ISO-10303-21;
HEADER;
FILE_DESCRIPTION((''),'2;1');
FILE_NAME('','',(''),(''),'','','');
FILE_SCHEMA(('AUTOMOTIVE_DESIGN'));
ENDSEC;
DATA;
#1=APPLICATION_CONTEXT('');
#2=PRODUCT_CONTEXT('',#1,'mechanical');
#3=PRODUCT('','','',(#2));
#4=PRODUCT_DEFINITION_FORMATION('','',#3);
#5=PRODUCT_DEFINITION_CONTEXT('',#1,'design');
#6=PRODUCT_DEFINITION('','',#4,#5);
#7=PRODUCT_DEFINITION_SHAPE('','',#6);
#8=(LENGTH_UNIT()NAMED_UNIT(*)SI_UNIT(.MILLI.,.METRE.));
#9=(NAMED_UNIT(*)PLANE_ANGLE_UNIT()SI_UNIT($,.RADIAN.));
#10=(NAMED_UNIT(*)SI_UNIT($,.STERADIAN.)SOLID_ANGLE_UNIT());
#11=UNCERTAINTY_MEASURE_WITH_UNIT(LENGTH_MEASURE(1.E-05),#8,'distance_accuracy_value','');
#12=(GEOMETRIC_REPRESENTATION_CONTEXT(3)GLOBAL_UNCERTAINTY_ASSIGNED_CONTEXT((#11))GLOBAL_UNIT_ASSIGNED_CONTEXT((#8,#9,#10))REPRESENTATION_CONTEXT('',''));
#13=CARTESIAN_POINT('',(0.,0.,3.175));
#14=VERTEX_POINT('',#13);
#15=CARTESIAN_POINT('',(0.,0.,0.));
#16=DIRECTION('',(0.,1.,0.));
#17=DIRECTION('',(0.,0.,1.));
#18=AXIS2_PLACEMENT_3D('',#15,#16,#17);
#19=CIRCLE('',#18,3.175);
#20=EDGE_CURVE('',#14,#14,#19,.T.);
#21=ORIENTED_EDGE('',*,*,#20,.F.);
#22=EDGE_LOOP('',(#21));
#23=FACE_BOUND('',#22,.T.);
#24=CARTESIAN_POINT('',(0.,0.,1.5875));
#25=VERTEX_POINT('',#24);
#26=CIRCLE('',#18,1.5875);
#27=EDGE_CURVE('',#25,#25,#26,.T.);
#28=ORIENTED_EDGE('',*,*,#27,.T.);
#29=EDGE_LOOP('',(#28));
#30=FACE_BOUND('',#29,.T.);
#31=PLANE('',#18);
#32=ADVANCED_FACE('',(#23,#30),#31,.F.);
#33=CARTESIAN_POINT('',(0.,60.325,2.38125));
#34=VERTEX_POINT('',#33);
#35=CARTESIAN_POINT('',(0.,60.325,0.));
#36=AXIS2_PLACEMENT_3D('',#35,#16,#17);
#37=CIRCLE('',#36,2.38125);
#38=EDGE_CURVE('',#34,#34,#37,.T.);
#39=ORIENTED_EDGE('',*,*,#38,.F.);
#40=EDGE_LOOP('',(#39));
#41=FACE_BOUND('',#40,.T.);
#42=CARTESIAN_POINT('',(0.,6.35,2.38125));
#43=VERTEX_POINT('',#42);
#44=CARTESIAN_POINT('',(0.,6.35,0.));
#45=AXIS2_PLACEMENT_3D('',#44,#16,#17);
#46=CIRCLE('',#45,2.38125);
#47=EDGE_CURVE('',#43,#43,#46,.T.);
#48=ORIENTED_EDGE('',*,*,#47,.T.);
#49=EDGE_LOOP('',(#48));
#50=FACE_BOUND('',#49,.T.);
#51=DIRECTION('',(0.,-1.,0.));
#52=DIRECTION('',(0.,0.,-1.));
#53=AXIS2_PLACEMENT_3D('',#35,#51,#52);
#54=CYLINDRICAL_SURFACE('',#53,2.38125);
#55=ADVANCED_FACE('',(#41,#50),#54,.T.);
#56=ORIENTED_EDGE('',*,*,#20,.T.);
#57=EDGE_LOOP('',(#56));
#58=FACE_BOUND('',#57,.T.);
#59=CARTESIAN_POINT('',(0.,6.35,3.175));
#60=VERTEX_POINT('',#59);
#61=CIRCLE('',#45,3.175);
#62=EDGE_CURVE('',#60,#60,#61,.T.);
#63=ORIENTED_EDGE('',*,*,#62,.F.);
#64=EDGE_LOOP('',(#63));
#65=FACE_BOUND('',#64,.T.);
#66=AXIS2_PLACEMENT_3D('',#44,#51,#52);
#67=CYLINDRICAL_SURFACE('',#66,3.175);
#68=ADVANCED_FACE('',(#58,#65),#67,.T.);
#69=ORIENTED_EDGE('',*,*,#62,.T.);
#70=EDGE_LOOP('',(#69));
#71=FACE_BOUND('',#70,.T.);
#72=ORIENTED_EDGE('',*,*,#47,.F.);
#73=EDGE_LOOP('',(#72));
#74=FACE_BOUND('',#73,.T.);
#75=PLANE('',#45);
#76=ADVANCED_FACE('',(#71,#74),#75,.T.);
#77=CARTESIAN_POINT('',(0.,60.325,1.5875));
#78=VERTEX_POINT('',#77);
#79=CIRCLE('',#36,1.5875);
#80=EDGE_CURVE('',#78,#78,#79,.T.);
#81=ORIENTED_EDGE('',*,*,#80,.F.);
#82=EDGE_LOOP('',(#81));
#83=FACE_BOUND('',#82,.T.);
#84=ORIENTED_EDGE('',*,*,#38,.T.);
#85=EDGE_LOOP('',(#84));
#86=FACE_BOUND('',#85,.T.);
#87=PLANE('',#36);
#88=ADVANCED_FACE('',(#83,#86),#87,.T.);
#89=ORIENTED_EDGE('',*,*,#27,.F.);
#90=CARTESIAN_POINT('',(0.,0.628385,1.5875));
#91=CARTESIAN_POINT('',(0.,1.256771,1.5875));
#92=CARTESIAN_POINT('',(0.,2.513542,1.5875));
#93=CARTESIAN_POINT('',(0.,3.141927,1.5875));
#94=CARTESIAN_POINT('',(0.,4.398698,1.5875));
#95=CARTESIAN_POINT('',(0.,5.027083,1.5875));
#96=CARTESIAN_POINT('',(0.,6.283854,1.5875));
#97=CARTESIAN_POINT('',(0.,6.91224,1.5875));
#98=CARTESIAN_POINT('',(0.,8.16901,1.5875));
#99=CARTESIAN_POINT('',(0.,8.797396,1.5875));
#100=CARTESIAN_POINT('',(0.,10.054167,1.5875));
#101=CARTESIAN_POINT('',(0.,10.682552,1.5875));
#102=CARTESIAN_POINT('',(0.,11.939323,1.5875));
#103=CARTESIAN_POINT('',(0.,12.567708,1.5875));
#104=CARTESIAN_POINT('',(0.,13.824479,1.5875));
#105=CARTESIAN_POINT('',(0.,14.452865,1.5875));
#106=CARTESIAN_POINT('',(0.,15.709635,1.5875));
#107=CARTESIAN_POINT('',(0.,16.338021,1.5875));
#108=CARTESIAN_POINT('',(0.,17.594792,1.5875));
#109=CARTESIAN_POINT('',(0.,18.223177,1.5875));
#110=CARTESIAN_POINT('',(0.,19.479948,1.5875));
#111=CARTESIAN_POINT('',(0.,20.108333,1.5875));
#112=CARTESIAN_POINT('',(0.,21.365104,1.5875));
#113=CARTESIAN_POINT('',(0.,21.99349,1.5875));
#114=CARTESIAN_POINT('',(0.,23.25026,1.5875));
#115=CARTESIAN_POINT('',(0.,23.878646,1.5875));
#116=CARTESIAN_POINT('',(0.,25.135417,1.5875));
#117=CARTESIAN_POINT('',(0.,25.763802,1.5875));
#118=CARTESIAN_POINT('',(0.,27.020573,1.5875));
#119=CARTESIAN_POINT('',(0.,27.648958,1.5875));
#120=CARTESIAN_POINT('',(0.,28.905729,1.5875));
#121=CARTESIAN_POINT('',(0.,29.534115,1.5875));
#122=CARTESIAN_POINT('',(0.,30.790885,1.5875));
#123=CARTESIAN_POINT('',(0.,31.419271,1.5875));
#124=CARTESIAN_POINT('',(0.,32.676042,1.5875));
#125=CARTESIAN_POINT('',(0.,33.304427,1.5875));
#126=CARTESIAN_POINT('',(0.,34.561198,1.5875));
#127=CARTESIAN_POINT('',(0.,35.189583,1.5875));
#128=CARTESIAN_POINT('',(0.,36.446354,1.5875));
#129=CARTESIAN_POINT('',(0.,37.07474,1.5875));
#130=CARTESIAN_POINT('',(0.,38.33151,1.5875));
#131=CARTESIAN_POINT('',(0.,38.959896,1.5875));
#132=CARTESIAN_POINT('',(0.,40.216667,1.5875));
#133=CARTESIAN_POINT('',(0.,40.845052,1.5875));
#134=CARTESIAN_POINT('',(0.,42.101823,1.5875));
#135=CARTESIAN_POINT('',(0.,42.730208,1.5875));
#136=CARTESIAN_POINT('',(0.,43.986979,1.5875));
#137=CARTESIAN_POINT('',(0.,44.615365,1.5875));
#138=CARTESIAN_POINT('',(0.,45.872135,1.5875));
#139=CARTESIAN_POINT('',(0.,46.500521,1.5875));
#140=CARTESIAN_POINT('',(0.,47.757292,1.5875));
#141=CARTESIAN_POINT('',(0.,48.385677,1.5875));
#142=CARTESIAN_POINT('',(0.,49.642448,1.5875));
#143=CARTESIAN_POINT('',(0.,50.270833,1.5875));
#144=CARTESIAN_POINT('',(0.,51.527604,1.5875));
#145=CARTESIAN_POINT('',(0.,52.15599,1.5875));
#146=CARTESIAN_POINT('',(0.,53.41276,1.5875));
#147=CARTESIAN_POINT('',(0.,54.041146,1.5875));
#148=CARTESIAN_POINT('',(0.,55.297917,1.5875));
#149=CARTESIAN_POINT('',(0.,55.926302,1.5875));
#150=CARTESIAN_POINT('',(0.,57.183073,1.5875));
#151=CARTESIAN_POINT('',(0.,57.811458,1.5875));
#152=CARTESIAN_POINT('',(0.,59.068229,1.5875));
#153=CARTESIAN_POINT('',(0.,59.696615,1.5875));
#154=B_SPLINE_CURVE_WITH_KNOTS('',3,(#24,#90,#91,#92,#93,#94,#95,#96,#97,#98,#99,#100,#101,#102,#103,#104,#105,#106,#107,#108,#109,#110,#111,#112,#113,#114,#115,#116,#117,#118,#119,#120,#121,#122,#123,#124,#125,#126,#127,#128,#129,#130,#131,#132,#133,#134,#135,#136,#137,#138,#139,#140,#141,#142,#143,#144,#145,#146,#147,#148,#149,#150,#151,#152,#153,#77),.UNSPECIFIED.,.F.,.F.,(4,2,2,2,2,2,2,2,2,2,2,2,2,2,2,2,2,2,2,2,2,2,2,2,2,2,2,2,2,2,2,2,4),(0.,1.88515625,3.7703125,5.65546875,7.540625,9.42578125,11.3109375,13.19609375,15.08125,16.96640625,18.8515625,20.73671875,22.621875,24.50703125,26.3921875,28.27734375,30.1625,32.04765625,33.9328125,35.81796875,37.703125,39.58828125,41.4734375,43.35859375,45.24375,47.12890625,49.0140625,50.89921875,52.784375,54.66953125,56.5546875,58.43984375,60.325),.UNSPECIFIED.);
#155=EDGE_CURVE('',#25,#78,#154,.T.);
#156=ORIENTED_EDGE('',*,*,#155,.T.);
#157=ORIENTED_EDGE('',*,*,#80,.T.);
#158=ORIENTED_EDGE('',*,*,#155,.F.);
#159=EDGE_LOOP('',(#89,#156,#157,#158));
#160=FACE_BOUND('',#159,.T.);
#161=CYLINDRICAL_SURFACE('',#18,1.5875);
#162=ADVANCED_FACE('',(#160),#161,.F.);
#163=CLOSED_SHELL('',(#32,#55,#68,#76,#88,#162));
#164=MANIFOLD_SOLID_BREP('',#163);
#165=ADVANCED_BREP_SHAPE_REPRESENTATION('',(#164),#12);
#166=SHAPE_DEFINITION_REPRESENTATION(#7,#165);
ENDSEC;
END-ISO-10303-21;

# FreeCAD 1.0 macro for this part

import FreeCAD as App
import Part
import Sketcher
Q = App.Units.Quantity

doc = App.newDocument("Part")
body = doc.addObject("PartDesign::Body", "Body")

# Sketch on XZ plane
sketch1 = body.newObject("Sketcher::SketchObject", "Sketch")
sketch1.AttachmentSupport = (doc.getObject("XZ_Plane"), [""])
sketch1.MapMode = "FlatFace"
sketch1.addGeometry(Part.Circle(App.Vector(0, 0, 0), App.Vector(0, 0, 1), 3.175), False)
sketch1.addConstraint(Sketcher.Constraint("Coincident", 0, 3, -1, 1))
sketch1.addConstraint(Sketcher.Constraint("Diameter", 0, Q("0.25 in")))
pad1 = body.newObject("PartDesign::Pad", "Pad")
pad1.Profile = sketch1
pad1.Length = Q("0.25 in")
pad1.Reversed = True

# Sketch on XZ plane
sketch2 = body.newObject("Sketcher::SketchObject", "Sketch001")
sketch2.AttachmentSupport = (doc.getObject("XZ_Plane"), [""])
sketch2.MapMode = "FlatFace"
sketch2.AttachmentOffset = App.Placement(App.Vector(0, 0, -0.25 * 25.4), App.Rotation())
sketch2.addGeometry(Part.Circle(App.Vector(0, 0, 0), App.Vector(0, 0, 1), 2.38125), False)
sketch2.addConstraint(Sketcher.Constraint("Coincident", 0, 3, -1, 1))
sketch2.addConstraint(Sketcher.Constraint("Diameter", 0, Q("0.1875 in")))
pad2 = body.newObject("PartDesign::Pad", "Pad001")
pad2.Profile = sketch2
pad2.Length = Q("2.125 in")
pad2.Reversed = True

# Sketch on XZ plane
sketch3 = body.newObject("Sketcher::SketchObject", "Sketch002")
sketch3.AttachmentSupport = (doc.getObject("XZ_Plane"), [""])
sketch3.MapMode = "FlatFace"
sketch3.AttachmentOffset = App.Placement(App.Vector(0, 0, -2.375 * 25.4), App.Rotation())
sketch3.addGeometry(Part.Circle(App.Vector(0, 0, 0), App.Vector(0, 0, 1), 1.5875), False)
sketch3.addConstraint(Sketcher.Constraint("Coincident", 0, 3, -1, 1))
sketch3.addConstraint(Sketcher.Constraint("Diameter", 0, Q("0.125 in")))
pocket1 = body.newObject("PartDesign::Pocket", "Pocket")
pocket1.Profile = sketch3
pocket1.Type = "ThroughAll"
pocket1.Reversed = True

doc.recompute()
